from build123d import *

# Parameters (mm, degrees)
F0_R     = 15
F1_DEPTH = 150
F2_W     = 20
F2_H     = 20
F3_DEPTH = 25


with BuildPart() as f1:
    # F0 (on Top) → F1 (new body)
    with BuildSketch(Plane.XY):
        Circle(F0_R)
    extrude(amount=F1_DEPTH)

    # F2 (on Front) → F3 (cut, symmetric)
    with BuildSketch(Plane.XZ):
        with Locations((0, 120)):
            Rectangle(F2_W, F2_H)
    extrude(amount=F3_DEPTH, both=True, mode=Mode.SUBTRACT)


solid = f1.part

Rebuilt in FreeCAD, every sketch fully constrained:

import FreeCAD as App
import Part
import Sketcher

V = App.Vector
Q = App.Units.Quantity


def add_polygon(sketch, points):
    """Adds a closed chain of lines whose ends are joined by coincident constraints."""
    first, n = sketch.GeometryCount, len(points)
    for a, b in zip(points, points[1:] + points[:1]):
        sketch.addGeometry(Part.LineSegment(App.Vector(*a, 0), App.Vector(*b, 0)), False)
    for i in range(n):
        sketch.addConstraint(Sketcher.Constraint("Coincident", first + i, 2, first + (i + 1) % n, 1))

doc = App.newDocument("Part")
body = doc.addObject("PartDesign::Body", "Body")

sketch1 = body.newObject("Sketcher::SketchObject", "Sketch")
sketch1.AttachmentSupport = (doc.getObject("XY_Plane"), [""])
sketch1.MapMode = "FlatFace"
sketch1.addGeometry(Part.Circle(V(0, 0, 0), V(0, 0, 1), 15), False)
sketch1.addConstraint([
    Sketcher.Constraint("Coincident", 0, 3, -1, 1),
    Sketcher.Constraint("Diameter", 0, Q("30 mm")),
])
pad1 = body.newObject("PartDesign::Pad", "Pad")
pad1.Profile = sketch1
pad1.Length = 150

sketch2 = body.newObject("Sketcher::SketchObject", "Sketch001")
sketch2.AttachmentSupport = (doc.getObject("XZ_Plane"), [""])
sketch2.MapMode = "FlatFace"
add_polygon(sketch2, [(-10, 130), (-10, 110), (10, 110), (10, 130)])
sketch2.addConstraint([
    Sketcher.Constraint("Vertical", 0),
    Sketcher.Constraint("Horizontal", 1),
    Sketcher.Constraint("Vertical", 2),
    Sketcher.Constraint("Horizontal", 3),
    Sketcher.Constraint("Equal", 3, 0),
    Sketcher.Constraint("DistanceX", 1, 1, 1, 2, Q("20 mm")),
    Sketcher.Constraint("DistanceX", 0, 2, -1, 1, Q("10 mm")),
    Sketcher.Constraint("DistanceY", -1, 1, 0, 2, Q("110 mm")),
])
pocket1 = body.newObject("PartDesign::Pocket", "Pocket")
pocket1.Profile = sketch2
pocket1.Length = 50
pocket1.Midplane = True

doc.recompute()
